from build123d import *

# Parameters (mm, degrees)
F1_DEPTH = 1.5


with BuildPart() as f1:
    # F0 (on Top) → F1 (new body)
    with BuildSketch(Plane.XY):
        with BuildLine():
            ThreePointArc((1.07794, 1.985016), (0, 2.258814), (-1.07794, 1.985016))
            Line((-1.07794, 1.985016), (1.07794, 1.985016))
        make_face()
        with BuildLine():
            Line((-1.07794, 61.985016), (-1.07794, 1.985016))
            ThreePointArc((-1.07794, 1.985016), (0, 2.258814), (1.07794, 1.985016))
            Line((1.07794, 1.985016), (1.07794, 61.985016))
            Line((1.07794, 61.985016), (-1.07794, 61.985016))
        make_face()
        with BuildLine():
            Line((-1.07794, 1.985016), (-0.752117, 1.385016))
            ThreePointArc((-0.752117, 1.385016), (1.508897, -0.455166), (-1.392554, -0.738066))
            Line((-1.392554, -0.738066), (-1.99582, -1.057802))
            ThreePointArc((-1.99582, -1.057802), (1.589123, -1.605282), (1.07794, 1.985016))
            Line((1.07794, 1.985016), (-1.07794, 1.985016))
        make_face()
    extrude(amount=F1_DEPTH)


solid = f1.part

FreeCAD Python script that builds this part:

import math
import FreeCAD as App
import Part
import Sketcher
from FreeCAD import Vector

doc = App.newDocument("Part")
body = doc.addObject("PartDesign::Body", "Body")

# Sketch on XY plane
sketch1 = body.newObject("Sketcher::SketchObject", "Sketch")
sketch1.AttachmentSupport = (doc.getObject("XY_Plane"), [""])
sketch1.MapMode = "FlatFace"
sketch1.addGeometry(Part.LineSegment(Vector(1.07794, 1.985016, 0), Vector(1.07794, 61.985016, 0)), False)
sketch1.addGeometry(Part.LineSegment(Vector(1.07794, 61.985016, 0), Vector(-1.07794, 61.985016, 0)), False)
sketch1.addGeometry(Part.LineSegment(Vector(-1.07794, 61.985016, 0), Vector(-1.07794, 1.985016, 0)), False)
sketch1.addGeometry(Part.LineSegment(Vector(-1.07794, 1.985016, 0), Vector(-0.752117, 1.385016, 0)), False)
sketch1.addGeometry(Part.ArcOfCircle(Part.Circle(Vector(0, 0, 0), Vector(0, 0, 1), 1.576054), math.radians(-152.075994), math.radians(118.503659)), False)
sketch1.addGeometry(Part.LineSegment(Vector(-1.392554, -0.738066, 0), Vector(-1.99582, -1.057802, 0)), False)
sketch1.addGeometry(Part.ArcOfCircle(Part.Circle(Vector(0, 0, 0), Vector(0, 0, 1), 2.258814), math.radians(-152.076017), math.radians(61.496336)), False)
sketch1.addConstraint(Sketcher.Constraint("Coincident", 0, 2, 1, 1))
sketch1.addConstraint(Sketcher.Constraint("Coincident", 1, 2, 2, 1))
sketch1.addConstraint(Sketcher.Constraint("Coincident", 2, 2, 3, 1))
sketch1.addConstraint(Sketcher.Constraint("Coincident", 3, 2, 4, 2))
sketch1.addConstraint(Sketcher.Constraint("Coincident", 4, 1, 5, 1))
sketch1.addConstraint(Sketcher.Constraint("Coincident", 5, 2, 6, 1))
sketch1.addConstraint(Sketcher.Constraint("Coincident", 6, 2, 0, 1))
sketch1.addConstraint(Sketcher.Constraint("Vertical", 0))
sketch1.addConstraint(Sketcher.Constraint("Horizontal", 1))
sketch1.addConstraint(Sketcher.Constraint("Vertical", 2))
sketch1.addConstraint(Sketcher.Constraint("Coincident", 4, 3, -1, 1))
sketch1.addConstraint(Sketcher.Constraint("Coincident", 6, 3, -1, 1))
sketch1.addConstraint(Sketcher.Constraint("Symmetric", 2, 2, 6, 2, -2))
sketch1.addConstraint(Sketcher.Constraint("DistanceY", 0, 1, 0, 2, 60.0))
sketch1.addConstraint(Sketcher.Constraint("DistanceY", 3, 2, 2, 2, 0.6))
sketch1.addConstraint(Sketcher.Constraint("Radius", 4, 1.576054))
sketch1.addConstraint(Sketcher.Constraint("Radius", 6, 2.258814))
sketch1.addConstraint(Sketcher.Constraint("DistanceX", 1, 2, 1, 1, 2.15588))
sketch1.addConstraint(Sketcher.Constraint("DistanceY", 5, 2, -1, 1, 1.057802))
sketch1.addConstraint(Sketcher.Constraint("DistanceY", 4, 1, 3, 2, 2.123082))
pad1 = body.newObject("PartDesign::Pad", "Pad")
pad1.Profile = sketch1
pad1.Length = 1.5

doc.recompute()
